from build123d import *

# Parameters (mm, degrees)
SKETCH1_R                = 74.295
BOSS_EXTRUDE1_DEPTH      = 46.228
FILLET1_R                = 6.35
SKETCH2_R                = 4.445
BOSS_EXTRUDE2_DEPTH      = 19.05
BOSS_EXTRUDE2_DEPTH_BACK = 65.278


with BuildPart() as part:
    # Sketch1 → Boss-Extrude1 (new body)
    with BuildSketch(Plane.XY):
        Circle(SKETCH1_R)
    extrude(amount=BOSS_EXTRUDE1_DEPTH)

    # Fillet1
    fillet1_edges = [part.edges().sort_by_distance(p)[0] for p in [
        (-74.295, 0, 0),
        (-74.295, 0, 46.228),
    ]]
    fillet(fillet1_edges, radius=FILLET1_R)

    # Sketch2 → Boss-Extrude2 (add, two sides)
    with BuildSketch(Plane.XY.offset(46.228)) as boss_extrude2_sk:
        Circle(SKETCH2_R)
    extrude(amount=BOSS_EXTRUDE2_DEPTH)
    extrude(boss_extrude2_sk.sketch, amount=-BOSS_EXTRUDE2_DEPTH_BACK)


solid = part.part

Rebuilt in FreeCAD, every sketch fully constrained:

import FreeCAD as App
import Part
import Sketcher
Q = App.Units.Quantity


def edges_at(feature, points):
    """Names of the edges that pass closest to the given points."""
    edges = feature.Shape.Edges
    near = lambda p: min(range(len(edges)), key=lambda i: edges[i].distToShape(Part.Vertex(*p))[0])
    return sorted({f"Edge{near(p) + 1}" for p in points})

doc = App.newDocument("Part")
body = doc.addObject("PartDesign::Body", "Body")

# Sketch on XY plane
sketch1 = body.newObject("Sketcher::SketchObject", "Sketch")
sketch1.AttachmentSupport = (doc.getObject("XY_Plane"), [""])
sketch1.MapMode = "FlatFace"
sketch1.addGeometry(Part.Circle(App.Vector(0, 0, 0), App.Vector(0, 0, 1), 74.295), False)
sketch1.addConstraint([
    Sketcher.Constraint("Coincident", 0, 3, -1, 1),
    Sketcher.Constraint("Diameter", 0, Q("5.85 in")),
])
pad1 = body.newObject("PartDesign::Pad", "Pad")
pad1.Profile = sketch1
pad1.Length = Q("1.82 in")
doc.recompute()

fillet = body.newObject("PartDesign::Fillet", "Fillet")
fillet.Base = (pad1, edges_at(pad1, [(-74.295, 0, 0), (-74.295, 0, 46.228)]))
fillet.Radius = Q("0.25 in")

# Sketch on XY plane
sketch2 = body.newObject("Sketcher::SketchObject", "Sketch001")
sketch2.AttachmentSupport = (doc.getObject("XY_Plane"), [""])
sketch2.MapMode = "FlatFace"
sketch2.AttachmentOffset = App.Placement(App.Vector(0, 0, 1.82 * 25.4), App.Rotation())
sketch2.addGeometry(Part.Circle(App.Vector(0, 0, 0), App.Vector(0, 0, 1), 4.445), False)
sketch2.addConstraint([
    Sketcher.Constraint("Coincident", 0, 3, -1, 1),
    Sketcher.Constraint("Diameter", 0, Q("0.35 in")),
])
pad2 = body.newObject("PartDesign::Pad", "Pad001")
pad2.Profile = sketch2
pad2.Type = "TwoLengths"
pad2.Length = Q("0.75 in")
pad2.Length2 = Q("2.57 in")

doc.recompute()
